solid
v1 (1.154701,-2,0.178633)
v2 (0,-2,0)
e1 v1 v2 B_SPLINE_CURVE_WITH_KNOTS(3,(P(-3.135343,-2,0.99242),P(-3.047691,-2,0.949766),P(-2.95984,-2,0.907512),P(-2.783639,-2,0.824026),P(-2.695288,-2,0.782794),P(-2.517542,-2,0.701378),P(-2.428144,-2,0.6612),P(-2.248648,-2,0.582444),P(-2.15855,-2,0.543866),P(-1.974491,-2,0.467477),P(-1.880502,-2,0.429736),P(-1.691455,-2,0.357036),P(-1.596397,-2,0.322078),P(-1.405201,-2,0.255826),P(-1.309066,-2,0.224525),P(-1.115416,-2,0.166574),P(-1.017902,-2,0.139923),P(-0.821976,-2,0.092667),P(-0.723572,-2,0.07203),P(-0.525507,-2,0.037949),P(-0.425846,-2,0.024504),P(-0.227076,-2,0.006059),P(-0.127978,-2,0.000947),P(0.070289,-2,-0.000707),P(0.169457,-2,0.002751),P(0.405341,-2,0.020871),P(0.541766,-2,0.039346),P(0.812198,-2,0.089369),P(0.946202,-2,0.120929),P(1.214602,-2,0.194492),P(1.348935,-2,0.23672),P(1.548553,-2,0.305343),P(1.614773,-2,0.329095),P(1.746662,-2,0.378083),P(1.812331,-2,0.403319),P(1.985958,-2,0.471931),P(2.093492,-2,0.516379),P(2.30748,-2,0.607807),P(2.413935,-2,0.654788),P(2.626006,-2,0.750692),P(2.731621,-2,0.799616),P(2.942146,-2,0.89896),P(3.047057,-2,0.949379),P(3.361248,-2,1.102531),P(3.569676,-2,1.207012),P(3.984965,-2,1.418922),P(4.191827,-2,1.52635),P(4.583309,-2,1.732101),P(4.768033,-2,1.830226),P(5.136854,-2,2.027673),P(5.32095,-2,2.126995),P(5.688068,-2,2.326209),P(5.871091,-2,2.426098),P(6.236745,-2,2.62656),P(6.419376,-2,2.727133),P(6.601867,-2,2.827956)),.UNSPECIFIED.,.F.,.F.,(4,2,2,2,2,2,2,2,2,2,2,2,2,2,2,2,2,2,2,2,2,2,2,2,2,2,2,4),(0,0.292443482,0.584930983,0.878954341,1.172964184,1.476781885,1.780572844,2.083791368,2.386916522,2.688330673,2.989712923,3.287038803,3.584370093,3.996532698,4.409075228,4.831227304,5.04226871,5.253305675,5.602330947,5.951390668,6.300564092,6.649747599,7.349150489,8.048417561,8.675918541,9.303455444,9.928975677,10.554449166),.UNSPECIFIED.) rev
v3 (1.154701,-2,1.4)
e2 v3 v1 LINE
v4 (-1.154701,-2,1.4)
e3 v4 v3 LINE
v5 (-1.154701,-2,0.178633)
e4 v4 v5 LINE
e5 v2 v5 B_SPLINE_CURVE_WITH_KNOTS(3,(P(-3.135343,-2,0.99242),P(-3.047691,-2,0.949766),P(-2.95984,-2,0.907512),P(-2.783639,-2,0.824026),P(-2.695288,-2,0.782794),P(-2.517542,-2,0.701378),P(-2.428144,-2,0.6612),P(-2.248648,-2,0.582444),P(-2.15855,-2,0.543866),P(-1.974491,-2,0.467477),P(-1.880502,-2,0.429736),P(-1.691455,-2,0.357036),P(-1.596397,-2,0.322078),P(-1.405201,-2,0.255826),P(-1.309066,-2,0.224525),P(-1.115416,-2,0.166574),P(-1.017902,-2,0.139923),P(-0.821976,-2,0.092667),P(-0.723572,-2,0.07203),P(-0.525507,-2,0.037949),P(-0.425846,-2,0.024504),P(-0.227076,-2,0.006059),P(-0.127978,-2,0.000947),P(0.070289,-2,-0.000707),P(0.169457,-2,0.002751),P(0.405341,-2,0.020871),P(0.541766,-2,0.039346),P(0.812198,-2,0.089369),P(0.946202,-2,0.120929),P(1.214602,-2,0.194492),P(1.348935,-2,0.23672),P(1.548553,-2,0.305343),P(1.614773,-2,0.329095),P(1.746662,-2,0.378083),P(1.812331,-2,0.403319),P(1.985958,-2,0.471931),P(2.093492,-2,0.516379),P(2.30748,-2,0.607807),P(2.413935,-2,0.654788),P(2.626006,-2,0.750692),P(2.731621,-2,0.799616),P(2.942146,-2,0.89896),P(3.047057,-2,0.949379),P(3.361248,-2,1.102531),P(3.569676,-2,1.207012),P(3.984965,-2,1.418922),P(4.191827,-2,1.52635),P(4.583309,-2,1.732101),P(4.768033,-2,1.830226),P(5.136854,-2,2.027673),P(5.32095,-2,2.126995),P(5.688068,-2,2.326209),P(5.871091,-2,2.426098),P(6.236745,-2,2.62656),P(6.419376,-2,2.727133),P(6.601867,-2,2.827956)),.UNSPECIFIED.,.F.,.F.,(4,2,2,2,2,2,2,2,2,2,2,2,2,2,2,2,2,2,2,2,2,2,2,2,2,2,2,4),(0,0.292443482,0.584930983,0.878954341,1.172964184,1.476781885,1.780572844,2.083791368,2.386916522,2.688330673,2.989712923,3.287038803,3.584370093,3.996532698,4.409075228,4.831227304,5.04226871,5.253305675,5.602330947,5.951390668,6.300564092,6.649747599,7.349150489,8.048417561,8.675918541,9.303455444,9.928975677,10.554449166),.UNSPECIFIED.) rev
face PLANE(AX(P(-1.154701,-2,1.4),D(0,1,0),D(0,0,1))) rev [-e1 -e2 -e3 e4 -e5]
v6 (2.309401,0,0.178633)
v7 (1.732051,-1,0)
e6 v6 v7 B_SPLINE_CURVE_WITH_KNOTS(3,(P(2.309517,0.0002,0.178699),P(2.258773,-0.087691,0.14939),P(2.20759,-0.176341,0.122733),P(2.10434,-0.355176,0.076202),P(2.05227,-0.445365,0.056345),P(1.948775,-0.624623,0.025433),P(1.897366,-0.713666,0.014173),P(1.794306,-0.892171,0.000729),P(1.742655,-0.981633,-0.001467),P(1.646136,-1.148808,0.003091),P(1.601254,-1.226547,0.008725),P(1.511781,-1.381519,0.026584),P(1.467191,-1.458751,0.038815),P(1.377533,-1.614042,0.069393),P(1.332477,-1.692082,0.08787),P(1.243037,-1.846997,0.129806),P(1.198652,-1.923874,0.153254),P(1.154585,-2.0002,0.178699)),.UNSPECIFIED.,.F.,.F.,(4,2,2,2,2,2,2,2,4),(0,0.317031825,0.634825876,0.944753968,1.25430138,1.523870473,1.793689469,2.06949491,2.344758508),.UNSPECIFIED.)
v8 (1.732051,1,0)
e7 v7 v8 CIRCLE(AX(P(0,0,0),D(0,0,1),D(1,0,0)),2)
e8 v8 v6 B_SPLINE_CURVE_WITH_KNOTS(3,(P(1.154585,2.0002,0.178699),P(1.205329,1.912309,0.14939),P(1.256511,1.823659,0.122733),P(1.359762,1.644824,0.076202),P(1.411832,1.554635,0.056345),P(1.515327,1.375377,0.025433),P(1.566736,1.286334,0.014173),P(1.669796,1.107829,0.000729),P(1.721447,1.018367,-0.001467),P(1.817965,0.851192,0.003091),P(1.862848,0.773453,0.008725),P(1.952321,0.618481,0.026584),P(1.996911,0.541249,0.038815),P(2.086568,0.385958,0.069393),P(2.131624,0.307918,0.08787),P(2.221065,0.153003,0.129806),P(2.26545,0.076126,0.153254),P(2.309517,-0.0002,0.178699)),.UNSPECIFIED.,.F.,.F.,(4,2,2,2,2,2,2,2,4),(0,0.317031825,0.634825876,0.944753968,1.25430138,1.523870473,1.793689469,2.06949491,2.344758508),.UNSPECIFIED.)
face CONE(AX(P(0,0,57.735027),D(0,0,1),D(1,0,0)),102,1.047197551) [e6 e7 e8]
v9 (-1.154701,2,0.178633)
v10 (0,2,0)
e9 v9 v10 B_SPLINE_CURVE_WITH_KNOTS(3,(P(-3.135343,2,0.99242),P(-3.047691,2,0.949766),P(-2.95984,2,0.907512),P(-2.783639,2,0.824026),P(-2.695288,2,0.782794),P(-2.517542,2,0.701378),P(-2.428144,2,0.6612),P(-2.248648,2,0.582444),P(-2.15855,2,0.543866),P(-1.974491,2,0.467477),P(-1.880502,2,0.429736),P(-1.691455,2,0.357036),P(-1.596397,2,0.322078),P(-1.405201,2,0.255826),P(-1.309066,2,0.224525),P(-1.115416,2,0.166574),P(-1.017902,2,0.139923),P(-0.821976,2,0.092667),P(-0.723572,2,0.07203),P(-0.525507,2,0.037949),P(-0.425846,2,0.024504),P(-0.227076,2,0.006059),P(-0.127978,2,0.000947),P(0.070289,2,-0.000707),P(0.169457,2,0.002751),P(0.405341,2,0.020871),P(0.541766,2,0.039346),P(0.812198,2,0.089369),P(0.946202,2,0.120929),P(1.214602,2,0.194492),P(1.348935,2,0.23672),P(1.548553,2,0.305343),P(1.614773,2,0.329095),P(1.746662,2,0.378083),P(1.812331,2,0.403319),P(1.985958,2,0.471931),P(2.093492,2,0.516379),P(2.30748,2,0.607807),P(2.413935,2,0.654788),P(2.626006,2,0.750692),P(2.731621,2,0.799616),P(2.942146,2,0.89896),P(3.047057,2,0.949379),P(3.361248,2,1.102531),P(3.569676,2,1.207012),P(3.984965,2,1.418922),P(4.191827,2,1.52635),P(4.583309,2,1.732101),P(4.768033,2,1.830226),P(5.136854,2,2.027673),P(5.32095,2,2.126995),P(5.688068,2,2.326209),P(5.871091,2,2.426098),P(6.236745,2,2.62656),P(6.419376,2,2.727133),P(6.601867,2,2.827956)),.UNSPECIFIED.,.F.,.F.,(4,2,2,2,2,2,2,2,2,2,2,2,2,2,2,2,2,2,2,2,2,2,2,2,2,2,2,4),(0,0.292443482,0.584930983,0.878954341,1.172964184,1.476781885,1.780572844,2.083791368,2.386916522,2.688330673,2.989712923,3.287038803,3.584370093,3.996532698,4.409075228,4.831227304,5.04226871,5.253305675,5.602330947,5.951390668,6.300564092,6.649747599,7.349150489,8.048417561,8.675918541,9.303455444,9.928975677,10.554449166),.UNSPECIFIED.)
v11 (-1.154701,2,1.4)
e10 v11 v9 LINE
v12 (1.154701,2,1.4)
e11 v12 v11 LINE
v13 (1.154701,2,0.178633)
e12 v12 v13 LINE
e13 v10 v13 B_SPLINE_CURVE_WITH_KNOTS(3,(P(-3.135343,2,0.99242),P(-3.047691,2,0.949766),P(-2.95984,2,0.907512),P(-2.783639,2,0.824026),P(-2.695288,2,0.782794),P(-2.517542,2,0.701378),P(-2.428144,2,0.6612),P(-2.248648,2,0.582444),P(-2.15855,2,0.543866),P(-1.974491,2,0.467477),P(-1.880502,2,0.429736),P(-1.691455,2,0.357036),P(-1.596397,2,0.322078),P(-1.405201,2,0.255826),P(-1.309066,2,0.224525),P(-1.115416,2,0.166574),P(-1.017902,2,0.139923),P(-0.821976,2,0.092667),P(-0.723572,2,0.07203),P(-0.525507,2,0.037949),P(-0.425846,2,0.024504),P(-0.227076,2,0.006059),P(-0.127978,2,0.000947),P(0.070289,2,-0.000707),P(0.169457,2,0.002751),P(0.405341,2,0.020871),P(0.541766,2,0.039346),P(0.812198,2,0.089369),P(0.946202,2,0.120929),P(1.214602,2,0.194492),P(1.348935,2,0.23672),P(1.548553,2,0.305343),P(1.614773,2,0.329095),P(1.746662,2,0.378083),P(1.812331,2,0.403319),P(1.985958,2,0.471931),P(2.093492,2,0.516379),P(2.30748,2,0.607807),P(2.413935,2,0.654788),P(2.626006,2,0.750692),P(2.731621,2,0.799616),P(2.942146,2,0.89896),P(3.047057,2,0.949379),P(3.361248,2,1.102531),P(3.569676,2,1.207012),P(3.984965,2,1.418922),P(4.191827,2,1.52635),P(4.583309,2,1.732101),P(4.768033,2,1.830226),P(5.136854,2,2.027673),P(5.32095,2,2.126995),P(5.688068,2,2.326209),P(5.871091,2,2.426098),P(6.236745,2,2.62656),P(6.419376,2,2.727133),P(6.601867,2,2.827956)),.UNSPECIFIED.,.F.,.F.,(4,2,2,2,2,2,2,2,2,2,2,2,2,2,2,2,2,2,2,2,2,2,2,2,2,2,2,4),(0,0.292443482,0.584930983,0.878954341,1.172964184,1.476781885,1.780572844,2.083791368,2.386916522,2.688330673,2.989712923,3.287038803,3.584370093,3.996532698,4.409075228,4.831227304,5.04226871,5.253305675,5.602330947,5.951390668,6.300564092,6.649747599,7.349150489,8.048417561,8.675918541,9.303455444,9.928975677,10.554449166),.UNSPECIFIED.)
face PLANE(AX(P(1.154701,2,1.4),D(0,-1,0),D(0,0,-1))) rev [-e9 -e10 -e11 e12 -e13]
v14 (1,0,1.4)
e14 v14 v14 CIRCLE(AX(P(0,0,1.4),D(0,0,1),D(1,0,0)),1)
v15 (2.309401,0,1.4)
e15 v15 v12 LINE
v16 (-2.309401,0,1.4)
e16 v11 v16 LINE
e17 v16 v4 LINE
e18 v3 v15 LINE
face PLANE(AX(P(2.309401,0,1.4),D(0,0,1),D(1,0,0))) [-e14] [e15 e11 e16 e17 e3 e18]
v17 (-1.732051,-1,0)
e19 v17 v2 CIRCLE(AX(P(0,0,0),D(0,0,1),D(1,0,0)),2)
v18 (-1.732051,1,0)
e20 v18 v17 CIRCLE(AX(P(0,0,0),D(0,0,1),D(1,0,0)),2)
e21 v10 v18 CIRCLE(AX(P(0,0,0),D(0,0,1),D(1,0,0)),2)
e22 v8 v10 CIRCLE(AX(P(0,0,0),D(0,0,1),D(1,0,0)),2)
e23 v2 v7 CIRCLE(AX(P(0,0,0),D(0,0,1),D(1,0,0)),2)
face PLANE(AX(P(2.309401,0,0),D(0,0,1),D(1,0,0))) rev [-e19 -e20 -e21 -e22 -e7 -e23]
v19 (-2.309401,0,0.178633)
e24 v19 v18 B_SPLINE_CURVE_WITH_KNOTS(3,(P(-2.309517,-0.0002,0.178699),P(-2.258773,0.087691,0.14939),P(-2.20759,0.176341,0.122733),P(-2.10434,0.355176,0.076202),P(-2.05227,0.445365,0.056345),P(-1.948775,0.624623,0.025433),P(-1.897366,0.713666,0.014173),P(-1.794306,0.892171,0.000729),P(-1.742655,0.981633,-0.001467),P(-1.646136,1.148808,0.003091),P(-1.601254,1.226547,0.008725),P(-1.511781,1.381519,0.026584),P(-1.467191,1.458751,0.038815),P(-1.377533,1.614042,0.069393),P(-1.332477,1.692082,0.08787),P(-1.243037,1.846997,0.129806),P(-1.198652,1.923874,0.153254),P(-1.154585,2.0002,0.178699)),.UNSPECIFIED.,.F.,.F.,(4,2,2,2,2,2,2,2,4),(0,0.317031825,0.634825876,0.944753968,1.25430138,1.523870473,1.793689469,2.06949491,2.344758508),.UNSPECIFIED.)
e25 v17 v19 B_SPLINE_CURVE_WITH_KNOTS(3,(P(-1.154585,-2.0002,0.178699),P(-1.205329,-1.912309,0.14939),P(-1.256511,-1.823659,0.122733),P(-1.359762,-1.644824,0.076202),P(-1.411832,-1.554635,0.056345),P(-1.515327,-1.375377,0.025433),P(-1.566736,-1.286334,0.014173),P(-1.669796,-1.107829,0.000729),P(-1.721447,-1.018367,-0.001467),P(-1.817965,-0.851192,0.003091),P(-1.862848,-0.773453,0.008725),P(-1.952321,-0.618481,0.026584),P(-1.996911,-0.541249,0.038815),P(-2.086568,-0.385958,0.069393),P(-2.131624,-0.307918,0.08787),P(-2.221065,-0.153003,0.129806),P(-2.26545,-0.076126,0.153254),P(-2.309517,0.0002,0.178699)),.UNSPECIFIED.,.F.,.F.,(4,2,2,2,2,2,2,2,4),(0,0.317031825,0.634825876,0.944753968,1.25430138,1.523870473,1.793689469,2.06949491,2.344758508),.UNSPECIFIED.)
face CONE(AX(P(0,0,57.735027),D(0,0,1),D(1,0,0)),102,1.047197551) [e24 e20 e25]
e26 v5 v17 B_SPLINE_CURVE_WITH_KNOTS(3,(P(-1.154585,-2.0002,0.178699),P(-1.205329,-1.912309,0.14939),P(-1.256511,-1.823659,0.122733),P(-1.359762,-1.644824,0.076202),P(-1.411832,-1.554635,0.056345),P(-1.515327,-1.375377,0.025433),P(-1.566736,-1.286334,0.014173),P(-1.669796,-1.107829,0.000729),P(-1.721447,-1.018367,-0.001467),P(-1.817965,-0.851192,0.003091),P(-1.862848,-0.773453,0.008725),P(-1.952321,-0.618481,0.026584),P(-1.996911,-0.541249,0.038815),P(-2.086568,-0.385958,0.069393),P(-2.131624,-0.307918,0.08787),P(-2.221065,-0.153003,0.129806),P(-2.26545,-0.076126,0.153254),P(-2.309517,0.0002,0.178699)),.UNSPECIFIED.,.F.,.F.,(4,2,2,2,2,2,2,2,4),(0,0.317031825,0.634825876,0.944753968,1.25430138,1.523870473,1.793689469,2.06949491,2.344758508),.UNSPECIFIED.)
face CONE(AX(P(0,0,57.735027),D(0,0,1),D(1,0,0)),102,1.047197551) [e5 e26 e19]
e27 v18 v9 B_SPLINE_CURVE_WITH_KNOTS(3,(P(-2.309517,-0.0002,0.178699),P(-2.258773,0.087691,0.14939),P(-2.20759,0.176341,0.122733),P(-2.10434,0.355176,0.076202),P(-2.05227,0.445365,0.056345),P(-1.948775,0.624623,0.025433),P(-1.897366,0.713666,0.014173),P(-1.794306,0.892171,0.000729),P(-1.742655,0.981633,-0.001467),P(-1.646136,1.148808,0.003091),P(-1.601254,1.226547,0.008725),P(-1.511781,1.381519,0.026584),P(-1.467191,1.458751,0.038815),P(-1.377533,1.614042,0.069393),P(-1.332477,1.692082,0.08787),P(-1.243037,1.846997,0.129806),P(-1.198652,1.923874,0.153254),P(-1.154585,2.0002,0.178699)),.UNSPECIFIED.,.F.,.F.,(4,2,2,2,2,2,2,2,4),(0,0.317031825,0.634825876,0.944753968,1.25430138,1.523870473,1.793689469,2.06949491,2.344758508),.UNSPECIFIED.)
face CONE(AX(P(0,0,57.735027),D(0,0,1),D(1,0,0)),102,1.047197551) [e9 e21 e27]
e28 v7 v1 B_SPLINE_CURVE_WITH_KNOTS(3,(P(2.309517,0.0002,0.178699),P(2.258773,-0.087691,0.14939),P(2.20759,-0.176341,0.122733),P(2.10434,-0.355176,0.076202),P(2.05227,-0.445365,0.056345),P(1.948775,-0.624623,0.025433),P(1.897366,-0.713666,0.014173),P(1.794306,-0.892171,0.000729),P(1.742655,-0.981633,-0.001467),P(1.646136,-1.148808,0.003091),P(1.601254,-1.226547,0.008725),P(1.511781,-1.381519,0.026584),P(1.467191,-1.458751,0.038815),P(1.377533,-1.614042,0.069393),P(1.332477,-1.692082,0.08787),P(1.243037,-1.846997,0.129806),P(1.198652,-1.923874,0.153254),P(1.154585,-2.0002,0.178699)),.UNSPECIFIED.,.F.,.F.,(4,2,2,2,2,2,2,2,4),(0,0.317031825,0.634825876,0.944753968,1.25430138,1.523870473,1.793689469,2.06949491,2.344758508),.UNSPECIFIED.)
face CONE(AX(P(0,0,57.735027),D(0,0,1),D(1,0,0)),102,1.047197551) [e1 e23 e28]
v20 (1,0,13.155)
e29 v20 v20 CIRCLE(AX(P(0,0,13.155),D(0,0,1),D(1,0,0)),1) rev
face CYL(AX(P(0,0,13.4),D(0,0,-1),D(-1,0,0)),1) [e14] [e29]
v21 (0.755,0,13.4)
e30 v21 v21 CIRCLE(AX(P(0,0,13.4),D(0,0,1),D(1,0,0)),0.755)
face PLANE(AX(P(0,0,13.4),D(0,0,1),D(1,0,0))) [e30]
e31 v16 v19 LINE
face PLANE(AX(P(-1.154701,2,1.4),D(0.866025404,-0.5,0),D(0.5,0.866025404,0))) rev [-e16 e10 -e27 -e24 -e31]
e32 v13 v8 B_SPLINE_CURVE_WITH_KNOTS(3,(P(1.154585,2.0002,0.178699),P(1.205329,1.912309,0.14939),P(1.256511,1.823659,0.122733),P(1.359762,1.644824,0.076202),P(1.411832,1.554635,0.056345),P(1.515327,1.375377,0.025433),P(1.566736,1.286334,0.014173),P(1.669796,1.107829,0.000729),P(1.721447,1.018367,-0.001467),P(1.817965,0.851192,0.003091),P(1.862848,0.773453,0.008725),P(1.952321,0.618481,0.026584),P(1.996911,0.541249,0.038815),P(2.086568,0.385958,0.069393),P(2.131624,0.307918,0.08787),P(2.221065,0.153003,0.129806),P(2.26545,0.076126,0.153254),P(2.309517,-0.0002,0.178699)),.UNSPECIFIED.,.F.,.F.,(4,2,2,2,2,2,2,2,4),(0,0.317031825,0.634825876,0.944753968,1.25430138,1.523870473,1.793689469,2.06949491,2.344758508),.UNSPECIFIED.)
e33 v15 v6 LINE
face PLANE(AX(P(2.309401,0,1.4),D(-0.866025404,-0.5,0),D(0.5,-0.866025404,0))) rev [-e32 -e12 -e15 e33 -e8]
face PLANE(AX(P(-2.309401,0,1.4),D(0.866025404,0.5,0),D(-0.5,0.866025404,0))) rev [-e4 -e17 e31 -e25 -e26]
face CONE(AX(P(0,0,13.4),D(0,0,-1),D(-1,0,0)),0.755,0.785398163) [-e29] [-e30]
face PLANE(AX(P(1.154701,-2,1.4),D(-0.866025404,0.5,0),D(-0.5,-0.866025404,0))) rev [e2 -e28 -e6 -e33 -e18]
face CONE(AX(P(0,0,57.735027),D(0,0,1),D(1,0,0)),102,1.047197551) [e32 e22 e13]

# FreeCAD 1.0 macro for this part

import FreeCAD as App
import Part
import Sketcher
from FreeCAD import Vector
Q = App.Units.Quantity


def edges_at(feature, points):
    """Names of the edges that pass closest to the given points."""
    edges = feature.Shape.Edges
    near = lambda p: min(range(len(edges)), key=lambda i: edges[i].distToShape(Part.Vertex(*p))[0])
    return sorted({f"Edge{near(p) + 1}" for p in points})

doc = App.newDocument("Part")
params = doc.addObject("Spreadsheet::Sheet", "Params")
for row, (alias, value) in enumerate([
    ("pad1_length", "1.4 mm"),
    ("sketch2_diameter", "2 mm"),
    ("pad2_length", "12 mm"),
    ("sketch3_width", "100 mm"),
    ("groove_angle", "360 deg"),
    ("chamfer_size", "0.245 mm"),
], start=1):
    params.set(f"A{row}", alias)
    params.set(f"B{row}", "=" + value)
    params.setAlias(f"B{row}", alias)

body = doc.addObject("PartDesign::Body", "Body")

# Sketch on XY plane
sketch1 = doc.addObject("Sketcher::SketchObject", "Sketch")
body.addObject(sketch1)
sketch1.AttachmentSupport = (doc.XY_Plane, [""])
sketch1.MapMode = "FlatFace"
sketch1.addGeometry(Part.LineSegment(Vector(2.3, 0, 0), Vector(1.2, 2, 0)), False)
sketch1.addGeometry(Part.LineSegment(Vector(1.2, 2, 0), Vector(-1.2, 2, 0)), False)
sketch1.addGeometry(Part.LineSegment(Vector(-1.2, 2, 0), Vector(-2.3, 0, 0)), False)
sketch1.addGeometry(Part.LineSegment(Vector(-2.3, 0, 0), Vector(-1.2, -2, 0)), False)
sketch1.addGeometry(Part.LineSegment(Vector(-1.2, -2, 0), Vector(1.2, -2, 0)), False)
sketch1.addGeometry(Part.LineSegment(Vector(1.2, -2, 0), Vector(2.3, 0, 0)), False)
sketch1.addConstraint(Sketcher.Constraint("Coincident", 0, 2, 1, 1))
sketch1.addConstraint(Sketcher.Constraint("Coincident", 1, 2, 2, 1))
sketch1.addConstraint(Sketcher.Constraint("Coincident", 2, 2, 3, 1))
sketch1.addConstraint(Sketcher.Constraint("Coincident", 3, 2, 4, 1))
sketch1.addConstraint(Sketcher.Constraint("Coincident", 4, 2, 5, 1))
sketch1.addConstraint(Sketcher.Constraint("Coincident", 5, 2, 0, 1))
sketch1.addConstraint(Sketcher.Constraint("Horizontal", 1))
sketch1.addConstraint(Sketcher.Constraint("Horizontal", 4))
sketch1.addConstraint(Sketcher.Constraint("Symmetric", 0, 2, 3, 2, -1, 1))
sketch1.addConstraint(Sketcher.Constraint("Symmetric", 2, 2, 5, 2, -1, 1))
sketch1.addConstraint(Sketcher.Constraint("PointOnObject", 2, 2, -1))
sketch1.addConstraint(Sketcher.Constraint("Parallel", 2, 5))
sketch1.addConstraint(Sketcher.Constraint("Vertical", 1, 2, 3, 2))
sketch1.addConstraint(Sketcher.Constraint("Angle", 0, Q("120 deg")))
sketch1.addConstraint(Sketcher.Constraint("DistanceY", -1, 1, 0, 2, 2.0))
sketch1.addConstraint(Sketcher.Constraint("DistanceX", 1, 2, 1, 1, 2.309401))
pad1 = doc.addObject("PartDesign::Pad", "Pad")
body.addObject(pad1)
pad1.Profile = sketch1
pad1.setExpression("Length", "Params.pad1_length")

# Sketch on XY plane
sketch2 = doc.addObject("Sketcher::SketchObject", "Sketch001")
body.addObject(sketch2)
sketch2.AttachmentSupport = (doc.XY_Plane, [""])
sketch2.MapMode = "FlatFace"
sketch2.AttachmentOffset = App.Placement(Vector(0, 0, 1.4), App.Rotation())
sketch2.addGeometry(Part.Circle(Vector(0, 0, 0), Vector(0, 0, 1), 1), False)
sketch2.addConstraint(Sketcher.Constraint("Coincident", 0, 3, -1, 1))
sketch2.addConstraint(Sketcher.Constraint("Diameter", 0, 2.0))
sketch2.setExpression("Constraints[1]", "Params.sketch2_diameter")
pad2 = doc.addObject("PartDesign::Pad", "Pad001")
body.addObject(pad2)
pad2.Profile = sketch2
pad2.setExpression("Length", "Params.pad2_length")

# Sketch on YZ plane
sketch3 = doc.addObject("Sketcher::SketchObject", "Sketch002")
body.addObject(sketch3)
sketch3.AttachmentSupport = (doc.YZ_Plane, [""])
sketch3.MapMode = "FlatFace"
sketch3.addGeometry(Part.LineSegment(Vector(2, 0, 0), Vector(102, 0, 0)), False)
sketch3.addGeometry(Part.LineSegment(Vector(102, 0, 0), Vector(102, 58, 0)), False)
sketch3.addGeometry(Part.LineSegment(Vector(102, 58, 0), Vector(2, 0, 0)), False)
sketch3.addConstraint(Sketcher.Constraint("Coincident", 0, 2, 1, 1))
sketch3.addConstraint(Sketcher.Constraint("Coincident", 1, 2, 2, 1))
sketch3.addConstraint(Sketcher.Constraint("Coincident", 2, 2, 0, 1))
sketch3.addConstraint(Sketcher.Constraint("Horizontal", 0))
sketch3.addConstraint(Sketcher.Constraint("Vertical", 1))
sketch3.addConstraint(Sketcher.Constraint("PointOnObject", 0, 2, -1))
sketch3.addConstraint(Sketcher.Constraint("DistanceX", 0, 1, 0, 2, 100.0))
sketch3.addConstraint(Sketcher.Constraint("Angle", 2, Q("-150 deg")))
sketch3.addConstraint(Sketcher.Constraint("DistanceX", -1, 1, 0, 2, 102.0))
sketch3.setExpression("Constraints[6]", "Params.sketch3_width")
groove = doc.addObject("PartDesign::Groove", "Groove")
body.addObject(groove)
groove.Profile = sketch3
groove.ReferenceAxis = (sketch3, ["V_Axis"])
groove.setExpression("Angle", "Params.groove_angle")
doc.recompute()

chamfer = doc.addObject("PartDesign::Chamfer", "Chamfer")
body.addObject(chamfer)
chamfer.Base = (groove, edges_at(groove, [(-1, 0, 13.4)]))
chamfer.setExpression("Size", "Params.chamfer_size")

doc.recompute()
